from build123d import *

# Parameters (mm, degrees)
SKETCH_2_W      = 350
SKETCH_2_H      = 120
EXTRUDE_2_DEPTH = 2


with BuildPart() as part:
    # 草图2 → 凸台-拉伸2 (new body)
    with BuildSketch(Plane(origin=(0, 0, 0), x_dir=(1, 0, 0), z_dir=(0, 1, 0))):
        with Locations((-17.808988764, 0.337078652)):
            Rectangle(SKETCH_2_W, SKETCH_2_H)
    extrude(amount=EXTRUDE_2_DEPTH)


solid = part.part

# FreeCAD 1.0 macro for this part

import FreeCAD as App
import Part
import Sketcher
Q = App.Units.Quantity

doc = App.newDocument("Part")
body = doc.addObject("PartDesign::Body", "Body")

sketch1 = body.newObject("Sketcher::SketchObject", "Sketch")
sketch1.AttachmentSupport = (doc.getObject("XZ_Plane"), [""])
sketch1.MapMode = "FlatFace"
sketch1.addGeometry([
    Part.LineSegment(App.Vector(-193, -60, 0), App.Vector(-193, 60, 0)),
    Part.LineSegment(App.Vector(-193, 60, 0), App.Vector(157, 60, 0)),
    Part.LineSegment(App.Vector(157, 60, 0), App.Vector(157, -60, 0)),
    Part.LineSegment(App.Vector(157, -60, 0), App.Vector(-193, -60, 0)),
], False)
sketch1.addConstraint([
    Sketcher.Constraint("Coincident", 0, 2, 1, 1),
    Sketcher.Constraint("Coincident", 1, 2, 2, 1),
    Sketcher.Constraint("Coincident", 2, 2, 3, 1),
    Sketcher.Constraint("Coincident", 3, 2, 0, 1),
    Sketcher.Constraint("Vertical", 0),
    Sketcher.Constraint("Horizontal", 1),
    Sketcher.Constraint("Vertical", 2),
    Sketcher.Constraint("Horizontal", 3),
    Sketcher.Constraint("DistanceX", 1, 1, 1, 2, Q("350 mm")),
    Sketcher.Constraint("DistanceY", 0, 1, 0, 2, Q("120 mm")),
    Sketcher.Constraint("DistanceX", 0, 2, -1, 1, Q("192.808989 mm")),
    Sketcher.Constraint("DistanceY", -1, 1, 0, 2, Q("59.662921 mm")),
])
pad1 = body.newObject("PartDesign::Pad", "Pad")
pad1.Profile = sketch1
pad1.Length = 2
pad1.Reversed = True

doc.recompute()
